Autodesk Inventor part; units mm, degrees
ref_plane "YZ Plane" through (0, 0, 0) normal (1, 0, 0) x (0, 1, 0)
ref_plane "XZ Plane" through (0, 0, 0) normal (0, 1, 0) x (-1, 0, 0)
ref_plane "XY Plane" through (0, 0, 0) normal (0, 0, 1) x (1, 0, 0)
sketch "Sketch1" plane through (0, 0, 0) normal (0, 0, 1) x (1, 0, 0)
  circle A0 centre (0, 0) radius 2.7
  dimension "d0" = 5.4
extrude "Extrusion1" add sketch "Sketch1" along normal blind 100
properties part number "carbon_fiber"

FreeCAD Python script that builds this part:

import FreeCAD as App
import Part
import Sketcher
Q = App.Units.Quantity

doc = App.newDocument("Part")
body = doc.addObject("PartDesign::Body", "Body")

# Sketch on XY plane
sketch1 = doc.addObject("Sketcher::SketchObject", "Sketch")
body.addObject(sketch1)
sketch1.AttachmentSupport = (doc.XY_Plane, [""])
sketch1.MapMode = "FlatFace"
sketch1.addGeometry(Part.Circle(App.Vector(0, 0, 0), App.Vector(0, 0, 1), 2.7), False)
sketch1.addConstraint([
    Sketcher.Constraint("Coincident", 0, 3, -1, 1),
    Sketcher.Constraint("Diameter", 0, Q("0.2126 in")),
])
pad1 = doc.addObject("PartDesign::Pad", "Pad")
body.addObject(pad1)
pad1.Profile = sketch1
pad1.Length = Q("3.9370079 in")

doc.recompute()
